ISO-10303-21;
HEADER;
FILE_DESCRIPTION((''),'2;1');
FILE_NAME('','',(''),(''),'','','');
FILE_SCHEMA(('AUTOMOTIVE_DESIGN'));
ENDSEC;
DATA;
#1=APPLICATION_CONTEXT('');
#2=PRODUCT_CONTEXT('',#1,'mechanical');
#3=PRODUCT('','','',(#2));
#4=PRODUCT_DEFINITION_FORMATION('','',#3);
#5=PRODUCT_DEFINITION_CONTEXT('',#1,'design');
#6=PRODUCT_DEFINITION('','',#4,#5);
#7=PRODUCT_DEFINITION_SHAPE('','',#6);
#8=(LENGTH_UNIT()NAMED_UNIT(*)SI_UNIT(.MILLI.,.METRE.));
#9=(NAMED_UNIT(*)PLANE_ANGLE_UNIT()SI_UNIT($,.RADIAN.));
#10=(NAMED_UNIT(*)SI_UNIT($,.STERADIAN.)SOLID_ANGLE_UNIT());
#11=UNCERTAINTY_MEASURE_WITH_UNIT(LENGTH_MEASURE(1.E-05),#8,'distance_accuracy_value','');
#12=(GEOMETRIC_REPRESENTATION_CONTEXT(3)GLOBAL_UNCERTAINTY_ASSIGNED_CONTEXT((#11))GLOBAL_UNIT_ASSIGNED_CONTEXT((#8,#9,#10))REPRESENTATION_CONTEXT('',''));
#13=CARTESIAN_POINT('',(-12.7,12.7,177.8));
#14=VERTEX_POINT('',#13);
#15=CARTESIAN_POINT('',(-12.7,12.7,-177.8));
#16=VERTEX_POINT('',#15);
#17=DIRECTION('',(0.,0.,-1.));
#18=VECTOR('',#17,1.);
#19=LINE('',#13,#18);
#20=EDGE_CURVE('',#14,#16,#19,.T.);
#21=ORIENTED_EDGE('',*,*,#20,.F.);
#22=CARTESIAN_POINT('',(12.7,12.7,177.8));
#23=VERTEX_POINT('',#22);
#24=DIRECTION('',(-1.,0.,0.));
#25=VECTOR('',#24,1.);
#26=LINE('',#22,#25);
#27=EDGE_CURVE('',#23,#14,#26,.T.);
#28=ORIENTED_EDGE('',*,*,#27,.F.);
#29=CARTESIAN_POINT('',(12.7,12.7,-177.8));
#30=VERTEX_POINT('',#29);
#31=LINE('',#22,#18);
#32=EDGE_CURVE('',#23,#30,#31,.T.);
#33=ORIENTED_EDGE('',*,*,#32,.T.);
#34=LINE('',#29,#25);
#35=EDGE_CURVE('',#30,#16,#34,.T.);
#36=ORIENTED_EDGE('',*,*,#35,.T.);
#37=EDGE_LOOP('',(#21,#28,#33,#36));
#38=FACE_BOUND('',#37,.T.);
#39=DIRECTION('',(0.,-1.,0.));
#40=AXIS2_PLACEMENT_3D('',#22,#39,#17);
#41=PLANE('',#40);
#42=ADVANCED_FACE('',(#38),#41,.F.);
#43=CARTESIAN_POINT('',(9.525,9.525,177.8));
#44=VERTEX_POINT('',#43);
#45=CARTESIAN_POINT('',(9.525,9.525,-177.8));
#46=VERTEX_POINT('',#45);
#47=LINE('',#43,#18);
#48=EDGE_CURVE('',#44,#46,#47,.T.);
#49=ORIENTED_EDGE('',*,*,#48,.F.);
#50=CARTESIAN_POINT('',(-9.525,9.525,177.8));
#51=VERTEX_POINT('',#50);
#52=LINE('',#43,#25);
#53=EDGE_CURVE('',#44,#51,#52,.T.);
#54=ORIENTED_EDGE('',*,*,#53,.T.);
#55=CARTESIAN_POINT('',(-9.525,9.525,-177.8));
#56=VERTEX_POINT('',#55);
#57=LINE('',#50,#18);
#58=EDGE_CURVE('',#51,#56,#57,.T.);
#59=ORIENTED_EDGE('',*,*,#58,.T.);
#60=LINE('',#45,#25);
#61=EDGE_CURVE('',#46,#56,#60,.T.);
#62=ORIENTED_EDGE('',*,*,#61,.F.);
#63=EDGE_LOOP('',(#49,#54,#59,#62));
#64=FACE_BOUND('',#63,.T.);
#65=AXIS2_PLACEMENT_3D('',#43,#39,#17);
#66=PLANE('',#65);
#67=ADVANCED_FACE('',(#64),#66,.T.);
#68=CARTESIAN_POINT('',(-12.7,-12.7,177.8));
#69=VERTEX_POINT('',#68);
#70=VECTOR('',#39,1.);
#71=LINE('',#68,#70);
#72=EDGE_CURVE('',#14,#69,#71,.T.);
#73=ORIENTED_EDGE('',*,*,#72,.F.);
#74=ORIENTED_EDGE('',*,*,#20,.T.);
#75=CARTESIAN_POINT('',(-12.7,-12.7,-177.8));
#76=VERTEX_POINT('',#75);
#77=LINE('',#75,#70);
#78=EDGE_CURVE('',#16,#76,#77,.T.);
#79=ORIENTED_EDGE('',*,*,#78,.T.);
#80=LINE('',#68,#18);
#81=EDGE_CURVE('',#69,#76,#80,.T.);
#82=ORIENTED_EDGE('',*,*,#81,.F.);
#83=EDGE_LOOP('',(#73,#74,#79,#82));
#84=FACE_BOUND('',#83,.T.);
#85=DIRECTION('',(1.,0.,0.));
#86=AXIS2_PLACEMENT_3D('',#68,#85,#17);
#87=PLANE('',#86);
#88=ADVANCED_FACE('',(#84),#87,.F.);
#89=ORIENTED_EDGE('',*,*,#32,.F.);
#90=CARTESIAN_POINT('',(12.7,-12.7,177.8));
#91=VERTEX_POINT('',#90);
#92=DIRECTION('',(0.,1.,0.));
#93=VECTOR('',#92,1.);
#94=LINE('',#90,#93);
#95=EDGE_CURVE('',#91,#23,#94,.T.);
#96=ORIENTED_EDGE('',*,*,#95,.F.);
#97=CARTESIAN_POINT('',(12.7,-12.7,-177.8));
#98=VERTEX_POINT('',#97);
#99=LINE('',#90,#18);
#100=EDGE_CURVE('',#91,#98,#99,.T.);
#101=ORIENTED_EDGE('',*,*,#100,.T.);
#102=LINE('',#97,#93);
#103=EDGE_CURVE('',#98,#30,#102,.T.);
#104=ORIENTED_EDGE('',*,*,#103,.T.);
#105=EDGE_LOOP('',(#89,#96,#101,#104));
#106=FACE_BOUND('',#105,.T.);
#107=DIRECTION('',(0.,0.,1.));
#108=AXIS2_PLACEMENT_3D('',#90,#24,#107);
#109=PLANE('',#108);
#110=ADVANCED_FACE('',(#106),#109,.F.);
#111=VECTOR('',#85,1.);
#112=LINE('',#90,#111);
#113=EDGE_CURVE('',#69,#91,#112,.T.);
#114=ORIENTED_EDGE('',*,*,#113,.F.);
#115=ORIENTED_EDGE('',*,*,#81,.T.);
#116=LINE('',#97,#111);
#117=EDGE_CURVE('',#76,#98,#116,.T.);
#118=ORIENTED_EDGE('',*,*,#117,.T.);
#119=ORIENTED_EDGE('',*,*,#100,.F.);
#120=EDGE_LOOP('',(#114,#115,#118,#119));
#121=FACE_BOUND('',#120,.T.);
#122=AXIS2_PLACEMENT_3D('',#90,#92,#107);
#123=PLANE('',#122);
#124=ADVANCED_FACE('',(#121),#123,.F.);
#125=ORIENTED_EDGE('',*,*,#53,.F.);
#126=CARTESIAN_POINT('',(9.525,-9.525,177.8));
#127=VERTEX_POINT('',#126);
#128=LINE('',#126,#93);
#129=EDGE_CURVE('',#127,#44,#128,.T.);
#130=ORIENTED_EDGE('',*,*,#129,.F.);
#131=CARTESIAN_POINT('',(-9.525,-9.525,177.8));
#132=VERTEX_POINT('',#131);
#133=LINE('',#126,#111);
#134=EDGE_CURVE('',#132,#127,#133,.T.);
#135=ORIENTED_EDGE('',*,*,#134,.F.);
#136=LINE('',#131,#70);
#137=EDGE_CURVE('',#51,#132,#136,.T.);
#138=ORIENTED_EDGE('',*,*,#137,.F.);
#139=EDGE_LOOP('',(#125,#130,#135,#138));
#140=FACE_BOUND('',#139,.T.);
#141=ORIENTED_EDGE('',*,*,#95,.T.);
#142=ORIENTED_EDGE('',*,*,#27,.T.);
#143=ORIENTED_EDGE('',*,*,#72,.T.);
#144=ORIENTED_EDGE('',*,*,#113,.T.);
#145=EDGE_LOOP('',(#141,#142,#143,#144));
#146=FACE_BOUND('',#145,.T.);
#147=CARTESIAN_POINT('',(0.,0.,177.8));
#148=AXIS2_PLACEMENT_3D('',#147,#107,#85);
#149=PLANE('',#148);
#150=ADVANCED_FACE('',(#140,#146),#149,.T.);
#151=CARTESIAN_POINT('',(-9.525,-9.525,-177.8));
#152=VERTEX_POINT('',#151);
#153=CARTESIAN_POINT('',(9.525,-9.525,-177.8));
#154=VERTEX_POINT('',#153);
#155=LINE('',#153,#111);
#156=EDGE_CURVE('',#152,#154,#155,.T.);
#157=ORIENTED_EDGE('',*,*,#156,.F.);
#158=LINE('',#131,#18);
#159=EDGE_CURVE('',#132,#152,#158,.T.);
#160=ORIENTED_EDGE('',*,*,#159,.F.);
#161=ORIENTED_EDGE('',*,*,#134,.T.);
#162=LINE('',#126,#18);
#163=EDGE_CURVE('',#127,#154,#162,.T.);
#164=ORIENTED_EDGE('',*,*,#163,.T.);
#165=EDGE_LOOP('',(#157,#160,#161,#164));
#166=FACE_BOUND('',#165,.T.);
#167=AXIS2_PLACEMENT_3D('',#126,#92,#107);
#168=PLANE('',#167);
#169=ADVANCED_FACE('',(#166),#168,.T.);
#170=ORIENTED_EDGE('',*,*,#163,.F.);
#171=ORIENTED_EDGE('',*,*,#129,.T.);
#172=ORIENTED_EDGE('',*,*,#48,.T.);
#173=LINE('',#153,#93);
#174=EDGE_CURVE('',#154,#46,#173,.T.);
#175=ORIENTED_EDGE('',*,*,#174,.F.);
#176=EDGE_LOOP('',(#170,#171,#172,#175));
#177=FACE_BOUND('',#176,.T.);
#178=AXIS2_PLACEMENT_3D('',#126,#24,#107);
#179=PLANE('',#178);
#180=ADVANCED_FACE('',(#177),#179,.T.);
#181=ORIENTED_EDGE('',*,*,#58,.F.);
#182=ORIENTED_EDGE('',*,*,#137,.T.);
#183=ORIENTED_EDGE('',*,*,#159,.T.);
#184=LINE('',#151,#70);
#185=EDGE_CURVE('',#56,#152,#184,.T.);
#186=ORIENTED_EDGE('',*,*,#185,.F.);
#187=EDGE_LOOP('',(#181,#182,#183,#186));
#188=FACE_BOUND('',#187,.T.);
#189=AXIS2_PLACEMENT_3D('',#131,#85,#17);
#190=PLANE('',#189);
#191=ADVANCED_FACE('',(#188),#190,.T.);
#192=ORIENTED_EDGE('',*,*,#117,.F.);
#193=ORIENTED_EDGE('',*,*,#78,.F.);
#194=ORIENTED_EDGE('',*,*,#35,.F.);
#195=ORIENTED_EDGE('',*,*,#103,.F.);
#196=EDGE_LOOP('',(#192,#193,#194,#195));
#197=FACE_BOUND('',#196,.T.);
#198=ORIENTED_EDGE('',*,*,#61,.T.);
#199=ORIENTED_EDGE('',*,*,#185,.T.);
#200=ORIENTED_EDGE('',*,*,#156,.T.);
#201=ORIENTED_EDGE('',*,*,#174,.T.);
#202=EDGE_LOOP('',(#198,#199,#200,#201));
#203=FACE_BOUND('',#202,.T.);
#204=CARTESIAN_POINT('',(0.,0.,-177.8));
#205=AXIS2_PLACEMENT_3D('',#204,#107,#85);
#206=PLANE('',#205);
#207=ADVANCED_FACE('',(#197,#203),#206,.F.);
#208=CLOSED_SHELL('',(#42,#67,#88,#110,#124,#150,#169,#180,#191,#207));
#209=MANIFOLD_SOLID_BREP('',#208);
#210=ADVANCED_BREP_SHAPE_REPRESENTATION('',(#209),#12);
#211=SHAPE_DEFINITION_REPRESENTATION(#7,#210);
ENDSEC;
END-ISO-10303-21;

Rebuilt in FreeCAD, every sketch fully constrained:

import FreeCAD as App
import Part
import Sketcher

V = App.Vector
Q = App.Units.Quantity


def add_polygon(sketch, points):
    """Adds a closed chain of lines whose ends are joined by coincident constraints."""
    first, n = sketch.GeometryCount, len(points)
    for a, b in zip(points, points[1:] + points[:1]):
        sketch.addGeometry(Part.LineSegment(App.Vector(*a, 0), App.Vector(*b, 0)), False)
    for i in range(n):
        sketch.addConstraint(Sketcher.Constraint("Coincident", first + i, 2, first + (i + 1) % n, 1))

doc = App.newDocument("Part")
body = doc.addObject("PartDesign::Body", "Body")

# Sketch on XY plane
sketch1 = doc.addObject("Sketcher::SketchObject", "Sketch")
body.addObject(sketch1)
sketch1.AttachmentSupport = (doc.XY_Plane, [""])
sketch1.MapMode = "FlatFace"
add_polygon(sketch1, [(-12.7, 12.7), (-12.7, -12.7), (12.7, -12.7), (12.7, 12.7)])  # lines 0-3
add_polygon(sketch1, [(9.525, -9.525), (-9.525, -9.525), (-9.525, 9.525), (9.525, 9.525)])  # lines 4-7
sketch1.addConstraint([
    Sketcher.Constraint("Vertical", 0),
    Sketcher.Constraint("Horizontal", 1),
    Sketcher.Constraint("Vertical", 2),
    Sketcher.Constraint("Horizontal", 3),
    Sketcher.Constraint("Horizontal", 4),
    Sketcher.Constraint("Vertical", 5),
    Sketcher.Constraint("Horizontal", 6),
    Sketcher.Constraint("Vertical", 7),
    Sketcher.Constraint("Symmetric", 0, 2, 2, 2, -1, 1),
    Sketcher.Constraint("Symmetric", 4, 2, 6, 2, -1, 1),
    Sketcher.Constraint("Equal", 3, 0),
    Sketcher.Constraint("Equal", 6, 5),
    Sketcher.Constraint("DistanceX", 1, 1, 1, 2, Q("1 in")),
    Sketcher.Constraint("DistanceX", 4, 2, 4, 1, Q("0.75 in")),
])
pad1 = doc.addObject("PartDesign::Pad", "Pad")
body.addObject(pad1)
pad1.Profile = sketch1
pad1.Type = "TwoLengths"
pad1.Length = Q("7 in")
pad1.Length2 = Q("7 in")

doc.recompute()
